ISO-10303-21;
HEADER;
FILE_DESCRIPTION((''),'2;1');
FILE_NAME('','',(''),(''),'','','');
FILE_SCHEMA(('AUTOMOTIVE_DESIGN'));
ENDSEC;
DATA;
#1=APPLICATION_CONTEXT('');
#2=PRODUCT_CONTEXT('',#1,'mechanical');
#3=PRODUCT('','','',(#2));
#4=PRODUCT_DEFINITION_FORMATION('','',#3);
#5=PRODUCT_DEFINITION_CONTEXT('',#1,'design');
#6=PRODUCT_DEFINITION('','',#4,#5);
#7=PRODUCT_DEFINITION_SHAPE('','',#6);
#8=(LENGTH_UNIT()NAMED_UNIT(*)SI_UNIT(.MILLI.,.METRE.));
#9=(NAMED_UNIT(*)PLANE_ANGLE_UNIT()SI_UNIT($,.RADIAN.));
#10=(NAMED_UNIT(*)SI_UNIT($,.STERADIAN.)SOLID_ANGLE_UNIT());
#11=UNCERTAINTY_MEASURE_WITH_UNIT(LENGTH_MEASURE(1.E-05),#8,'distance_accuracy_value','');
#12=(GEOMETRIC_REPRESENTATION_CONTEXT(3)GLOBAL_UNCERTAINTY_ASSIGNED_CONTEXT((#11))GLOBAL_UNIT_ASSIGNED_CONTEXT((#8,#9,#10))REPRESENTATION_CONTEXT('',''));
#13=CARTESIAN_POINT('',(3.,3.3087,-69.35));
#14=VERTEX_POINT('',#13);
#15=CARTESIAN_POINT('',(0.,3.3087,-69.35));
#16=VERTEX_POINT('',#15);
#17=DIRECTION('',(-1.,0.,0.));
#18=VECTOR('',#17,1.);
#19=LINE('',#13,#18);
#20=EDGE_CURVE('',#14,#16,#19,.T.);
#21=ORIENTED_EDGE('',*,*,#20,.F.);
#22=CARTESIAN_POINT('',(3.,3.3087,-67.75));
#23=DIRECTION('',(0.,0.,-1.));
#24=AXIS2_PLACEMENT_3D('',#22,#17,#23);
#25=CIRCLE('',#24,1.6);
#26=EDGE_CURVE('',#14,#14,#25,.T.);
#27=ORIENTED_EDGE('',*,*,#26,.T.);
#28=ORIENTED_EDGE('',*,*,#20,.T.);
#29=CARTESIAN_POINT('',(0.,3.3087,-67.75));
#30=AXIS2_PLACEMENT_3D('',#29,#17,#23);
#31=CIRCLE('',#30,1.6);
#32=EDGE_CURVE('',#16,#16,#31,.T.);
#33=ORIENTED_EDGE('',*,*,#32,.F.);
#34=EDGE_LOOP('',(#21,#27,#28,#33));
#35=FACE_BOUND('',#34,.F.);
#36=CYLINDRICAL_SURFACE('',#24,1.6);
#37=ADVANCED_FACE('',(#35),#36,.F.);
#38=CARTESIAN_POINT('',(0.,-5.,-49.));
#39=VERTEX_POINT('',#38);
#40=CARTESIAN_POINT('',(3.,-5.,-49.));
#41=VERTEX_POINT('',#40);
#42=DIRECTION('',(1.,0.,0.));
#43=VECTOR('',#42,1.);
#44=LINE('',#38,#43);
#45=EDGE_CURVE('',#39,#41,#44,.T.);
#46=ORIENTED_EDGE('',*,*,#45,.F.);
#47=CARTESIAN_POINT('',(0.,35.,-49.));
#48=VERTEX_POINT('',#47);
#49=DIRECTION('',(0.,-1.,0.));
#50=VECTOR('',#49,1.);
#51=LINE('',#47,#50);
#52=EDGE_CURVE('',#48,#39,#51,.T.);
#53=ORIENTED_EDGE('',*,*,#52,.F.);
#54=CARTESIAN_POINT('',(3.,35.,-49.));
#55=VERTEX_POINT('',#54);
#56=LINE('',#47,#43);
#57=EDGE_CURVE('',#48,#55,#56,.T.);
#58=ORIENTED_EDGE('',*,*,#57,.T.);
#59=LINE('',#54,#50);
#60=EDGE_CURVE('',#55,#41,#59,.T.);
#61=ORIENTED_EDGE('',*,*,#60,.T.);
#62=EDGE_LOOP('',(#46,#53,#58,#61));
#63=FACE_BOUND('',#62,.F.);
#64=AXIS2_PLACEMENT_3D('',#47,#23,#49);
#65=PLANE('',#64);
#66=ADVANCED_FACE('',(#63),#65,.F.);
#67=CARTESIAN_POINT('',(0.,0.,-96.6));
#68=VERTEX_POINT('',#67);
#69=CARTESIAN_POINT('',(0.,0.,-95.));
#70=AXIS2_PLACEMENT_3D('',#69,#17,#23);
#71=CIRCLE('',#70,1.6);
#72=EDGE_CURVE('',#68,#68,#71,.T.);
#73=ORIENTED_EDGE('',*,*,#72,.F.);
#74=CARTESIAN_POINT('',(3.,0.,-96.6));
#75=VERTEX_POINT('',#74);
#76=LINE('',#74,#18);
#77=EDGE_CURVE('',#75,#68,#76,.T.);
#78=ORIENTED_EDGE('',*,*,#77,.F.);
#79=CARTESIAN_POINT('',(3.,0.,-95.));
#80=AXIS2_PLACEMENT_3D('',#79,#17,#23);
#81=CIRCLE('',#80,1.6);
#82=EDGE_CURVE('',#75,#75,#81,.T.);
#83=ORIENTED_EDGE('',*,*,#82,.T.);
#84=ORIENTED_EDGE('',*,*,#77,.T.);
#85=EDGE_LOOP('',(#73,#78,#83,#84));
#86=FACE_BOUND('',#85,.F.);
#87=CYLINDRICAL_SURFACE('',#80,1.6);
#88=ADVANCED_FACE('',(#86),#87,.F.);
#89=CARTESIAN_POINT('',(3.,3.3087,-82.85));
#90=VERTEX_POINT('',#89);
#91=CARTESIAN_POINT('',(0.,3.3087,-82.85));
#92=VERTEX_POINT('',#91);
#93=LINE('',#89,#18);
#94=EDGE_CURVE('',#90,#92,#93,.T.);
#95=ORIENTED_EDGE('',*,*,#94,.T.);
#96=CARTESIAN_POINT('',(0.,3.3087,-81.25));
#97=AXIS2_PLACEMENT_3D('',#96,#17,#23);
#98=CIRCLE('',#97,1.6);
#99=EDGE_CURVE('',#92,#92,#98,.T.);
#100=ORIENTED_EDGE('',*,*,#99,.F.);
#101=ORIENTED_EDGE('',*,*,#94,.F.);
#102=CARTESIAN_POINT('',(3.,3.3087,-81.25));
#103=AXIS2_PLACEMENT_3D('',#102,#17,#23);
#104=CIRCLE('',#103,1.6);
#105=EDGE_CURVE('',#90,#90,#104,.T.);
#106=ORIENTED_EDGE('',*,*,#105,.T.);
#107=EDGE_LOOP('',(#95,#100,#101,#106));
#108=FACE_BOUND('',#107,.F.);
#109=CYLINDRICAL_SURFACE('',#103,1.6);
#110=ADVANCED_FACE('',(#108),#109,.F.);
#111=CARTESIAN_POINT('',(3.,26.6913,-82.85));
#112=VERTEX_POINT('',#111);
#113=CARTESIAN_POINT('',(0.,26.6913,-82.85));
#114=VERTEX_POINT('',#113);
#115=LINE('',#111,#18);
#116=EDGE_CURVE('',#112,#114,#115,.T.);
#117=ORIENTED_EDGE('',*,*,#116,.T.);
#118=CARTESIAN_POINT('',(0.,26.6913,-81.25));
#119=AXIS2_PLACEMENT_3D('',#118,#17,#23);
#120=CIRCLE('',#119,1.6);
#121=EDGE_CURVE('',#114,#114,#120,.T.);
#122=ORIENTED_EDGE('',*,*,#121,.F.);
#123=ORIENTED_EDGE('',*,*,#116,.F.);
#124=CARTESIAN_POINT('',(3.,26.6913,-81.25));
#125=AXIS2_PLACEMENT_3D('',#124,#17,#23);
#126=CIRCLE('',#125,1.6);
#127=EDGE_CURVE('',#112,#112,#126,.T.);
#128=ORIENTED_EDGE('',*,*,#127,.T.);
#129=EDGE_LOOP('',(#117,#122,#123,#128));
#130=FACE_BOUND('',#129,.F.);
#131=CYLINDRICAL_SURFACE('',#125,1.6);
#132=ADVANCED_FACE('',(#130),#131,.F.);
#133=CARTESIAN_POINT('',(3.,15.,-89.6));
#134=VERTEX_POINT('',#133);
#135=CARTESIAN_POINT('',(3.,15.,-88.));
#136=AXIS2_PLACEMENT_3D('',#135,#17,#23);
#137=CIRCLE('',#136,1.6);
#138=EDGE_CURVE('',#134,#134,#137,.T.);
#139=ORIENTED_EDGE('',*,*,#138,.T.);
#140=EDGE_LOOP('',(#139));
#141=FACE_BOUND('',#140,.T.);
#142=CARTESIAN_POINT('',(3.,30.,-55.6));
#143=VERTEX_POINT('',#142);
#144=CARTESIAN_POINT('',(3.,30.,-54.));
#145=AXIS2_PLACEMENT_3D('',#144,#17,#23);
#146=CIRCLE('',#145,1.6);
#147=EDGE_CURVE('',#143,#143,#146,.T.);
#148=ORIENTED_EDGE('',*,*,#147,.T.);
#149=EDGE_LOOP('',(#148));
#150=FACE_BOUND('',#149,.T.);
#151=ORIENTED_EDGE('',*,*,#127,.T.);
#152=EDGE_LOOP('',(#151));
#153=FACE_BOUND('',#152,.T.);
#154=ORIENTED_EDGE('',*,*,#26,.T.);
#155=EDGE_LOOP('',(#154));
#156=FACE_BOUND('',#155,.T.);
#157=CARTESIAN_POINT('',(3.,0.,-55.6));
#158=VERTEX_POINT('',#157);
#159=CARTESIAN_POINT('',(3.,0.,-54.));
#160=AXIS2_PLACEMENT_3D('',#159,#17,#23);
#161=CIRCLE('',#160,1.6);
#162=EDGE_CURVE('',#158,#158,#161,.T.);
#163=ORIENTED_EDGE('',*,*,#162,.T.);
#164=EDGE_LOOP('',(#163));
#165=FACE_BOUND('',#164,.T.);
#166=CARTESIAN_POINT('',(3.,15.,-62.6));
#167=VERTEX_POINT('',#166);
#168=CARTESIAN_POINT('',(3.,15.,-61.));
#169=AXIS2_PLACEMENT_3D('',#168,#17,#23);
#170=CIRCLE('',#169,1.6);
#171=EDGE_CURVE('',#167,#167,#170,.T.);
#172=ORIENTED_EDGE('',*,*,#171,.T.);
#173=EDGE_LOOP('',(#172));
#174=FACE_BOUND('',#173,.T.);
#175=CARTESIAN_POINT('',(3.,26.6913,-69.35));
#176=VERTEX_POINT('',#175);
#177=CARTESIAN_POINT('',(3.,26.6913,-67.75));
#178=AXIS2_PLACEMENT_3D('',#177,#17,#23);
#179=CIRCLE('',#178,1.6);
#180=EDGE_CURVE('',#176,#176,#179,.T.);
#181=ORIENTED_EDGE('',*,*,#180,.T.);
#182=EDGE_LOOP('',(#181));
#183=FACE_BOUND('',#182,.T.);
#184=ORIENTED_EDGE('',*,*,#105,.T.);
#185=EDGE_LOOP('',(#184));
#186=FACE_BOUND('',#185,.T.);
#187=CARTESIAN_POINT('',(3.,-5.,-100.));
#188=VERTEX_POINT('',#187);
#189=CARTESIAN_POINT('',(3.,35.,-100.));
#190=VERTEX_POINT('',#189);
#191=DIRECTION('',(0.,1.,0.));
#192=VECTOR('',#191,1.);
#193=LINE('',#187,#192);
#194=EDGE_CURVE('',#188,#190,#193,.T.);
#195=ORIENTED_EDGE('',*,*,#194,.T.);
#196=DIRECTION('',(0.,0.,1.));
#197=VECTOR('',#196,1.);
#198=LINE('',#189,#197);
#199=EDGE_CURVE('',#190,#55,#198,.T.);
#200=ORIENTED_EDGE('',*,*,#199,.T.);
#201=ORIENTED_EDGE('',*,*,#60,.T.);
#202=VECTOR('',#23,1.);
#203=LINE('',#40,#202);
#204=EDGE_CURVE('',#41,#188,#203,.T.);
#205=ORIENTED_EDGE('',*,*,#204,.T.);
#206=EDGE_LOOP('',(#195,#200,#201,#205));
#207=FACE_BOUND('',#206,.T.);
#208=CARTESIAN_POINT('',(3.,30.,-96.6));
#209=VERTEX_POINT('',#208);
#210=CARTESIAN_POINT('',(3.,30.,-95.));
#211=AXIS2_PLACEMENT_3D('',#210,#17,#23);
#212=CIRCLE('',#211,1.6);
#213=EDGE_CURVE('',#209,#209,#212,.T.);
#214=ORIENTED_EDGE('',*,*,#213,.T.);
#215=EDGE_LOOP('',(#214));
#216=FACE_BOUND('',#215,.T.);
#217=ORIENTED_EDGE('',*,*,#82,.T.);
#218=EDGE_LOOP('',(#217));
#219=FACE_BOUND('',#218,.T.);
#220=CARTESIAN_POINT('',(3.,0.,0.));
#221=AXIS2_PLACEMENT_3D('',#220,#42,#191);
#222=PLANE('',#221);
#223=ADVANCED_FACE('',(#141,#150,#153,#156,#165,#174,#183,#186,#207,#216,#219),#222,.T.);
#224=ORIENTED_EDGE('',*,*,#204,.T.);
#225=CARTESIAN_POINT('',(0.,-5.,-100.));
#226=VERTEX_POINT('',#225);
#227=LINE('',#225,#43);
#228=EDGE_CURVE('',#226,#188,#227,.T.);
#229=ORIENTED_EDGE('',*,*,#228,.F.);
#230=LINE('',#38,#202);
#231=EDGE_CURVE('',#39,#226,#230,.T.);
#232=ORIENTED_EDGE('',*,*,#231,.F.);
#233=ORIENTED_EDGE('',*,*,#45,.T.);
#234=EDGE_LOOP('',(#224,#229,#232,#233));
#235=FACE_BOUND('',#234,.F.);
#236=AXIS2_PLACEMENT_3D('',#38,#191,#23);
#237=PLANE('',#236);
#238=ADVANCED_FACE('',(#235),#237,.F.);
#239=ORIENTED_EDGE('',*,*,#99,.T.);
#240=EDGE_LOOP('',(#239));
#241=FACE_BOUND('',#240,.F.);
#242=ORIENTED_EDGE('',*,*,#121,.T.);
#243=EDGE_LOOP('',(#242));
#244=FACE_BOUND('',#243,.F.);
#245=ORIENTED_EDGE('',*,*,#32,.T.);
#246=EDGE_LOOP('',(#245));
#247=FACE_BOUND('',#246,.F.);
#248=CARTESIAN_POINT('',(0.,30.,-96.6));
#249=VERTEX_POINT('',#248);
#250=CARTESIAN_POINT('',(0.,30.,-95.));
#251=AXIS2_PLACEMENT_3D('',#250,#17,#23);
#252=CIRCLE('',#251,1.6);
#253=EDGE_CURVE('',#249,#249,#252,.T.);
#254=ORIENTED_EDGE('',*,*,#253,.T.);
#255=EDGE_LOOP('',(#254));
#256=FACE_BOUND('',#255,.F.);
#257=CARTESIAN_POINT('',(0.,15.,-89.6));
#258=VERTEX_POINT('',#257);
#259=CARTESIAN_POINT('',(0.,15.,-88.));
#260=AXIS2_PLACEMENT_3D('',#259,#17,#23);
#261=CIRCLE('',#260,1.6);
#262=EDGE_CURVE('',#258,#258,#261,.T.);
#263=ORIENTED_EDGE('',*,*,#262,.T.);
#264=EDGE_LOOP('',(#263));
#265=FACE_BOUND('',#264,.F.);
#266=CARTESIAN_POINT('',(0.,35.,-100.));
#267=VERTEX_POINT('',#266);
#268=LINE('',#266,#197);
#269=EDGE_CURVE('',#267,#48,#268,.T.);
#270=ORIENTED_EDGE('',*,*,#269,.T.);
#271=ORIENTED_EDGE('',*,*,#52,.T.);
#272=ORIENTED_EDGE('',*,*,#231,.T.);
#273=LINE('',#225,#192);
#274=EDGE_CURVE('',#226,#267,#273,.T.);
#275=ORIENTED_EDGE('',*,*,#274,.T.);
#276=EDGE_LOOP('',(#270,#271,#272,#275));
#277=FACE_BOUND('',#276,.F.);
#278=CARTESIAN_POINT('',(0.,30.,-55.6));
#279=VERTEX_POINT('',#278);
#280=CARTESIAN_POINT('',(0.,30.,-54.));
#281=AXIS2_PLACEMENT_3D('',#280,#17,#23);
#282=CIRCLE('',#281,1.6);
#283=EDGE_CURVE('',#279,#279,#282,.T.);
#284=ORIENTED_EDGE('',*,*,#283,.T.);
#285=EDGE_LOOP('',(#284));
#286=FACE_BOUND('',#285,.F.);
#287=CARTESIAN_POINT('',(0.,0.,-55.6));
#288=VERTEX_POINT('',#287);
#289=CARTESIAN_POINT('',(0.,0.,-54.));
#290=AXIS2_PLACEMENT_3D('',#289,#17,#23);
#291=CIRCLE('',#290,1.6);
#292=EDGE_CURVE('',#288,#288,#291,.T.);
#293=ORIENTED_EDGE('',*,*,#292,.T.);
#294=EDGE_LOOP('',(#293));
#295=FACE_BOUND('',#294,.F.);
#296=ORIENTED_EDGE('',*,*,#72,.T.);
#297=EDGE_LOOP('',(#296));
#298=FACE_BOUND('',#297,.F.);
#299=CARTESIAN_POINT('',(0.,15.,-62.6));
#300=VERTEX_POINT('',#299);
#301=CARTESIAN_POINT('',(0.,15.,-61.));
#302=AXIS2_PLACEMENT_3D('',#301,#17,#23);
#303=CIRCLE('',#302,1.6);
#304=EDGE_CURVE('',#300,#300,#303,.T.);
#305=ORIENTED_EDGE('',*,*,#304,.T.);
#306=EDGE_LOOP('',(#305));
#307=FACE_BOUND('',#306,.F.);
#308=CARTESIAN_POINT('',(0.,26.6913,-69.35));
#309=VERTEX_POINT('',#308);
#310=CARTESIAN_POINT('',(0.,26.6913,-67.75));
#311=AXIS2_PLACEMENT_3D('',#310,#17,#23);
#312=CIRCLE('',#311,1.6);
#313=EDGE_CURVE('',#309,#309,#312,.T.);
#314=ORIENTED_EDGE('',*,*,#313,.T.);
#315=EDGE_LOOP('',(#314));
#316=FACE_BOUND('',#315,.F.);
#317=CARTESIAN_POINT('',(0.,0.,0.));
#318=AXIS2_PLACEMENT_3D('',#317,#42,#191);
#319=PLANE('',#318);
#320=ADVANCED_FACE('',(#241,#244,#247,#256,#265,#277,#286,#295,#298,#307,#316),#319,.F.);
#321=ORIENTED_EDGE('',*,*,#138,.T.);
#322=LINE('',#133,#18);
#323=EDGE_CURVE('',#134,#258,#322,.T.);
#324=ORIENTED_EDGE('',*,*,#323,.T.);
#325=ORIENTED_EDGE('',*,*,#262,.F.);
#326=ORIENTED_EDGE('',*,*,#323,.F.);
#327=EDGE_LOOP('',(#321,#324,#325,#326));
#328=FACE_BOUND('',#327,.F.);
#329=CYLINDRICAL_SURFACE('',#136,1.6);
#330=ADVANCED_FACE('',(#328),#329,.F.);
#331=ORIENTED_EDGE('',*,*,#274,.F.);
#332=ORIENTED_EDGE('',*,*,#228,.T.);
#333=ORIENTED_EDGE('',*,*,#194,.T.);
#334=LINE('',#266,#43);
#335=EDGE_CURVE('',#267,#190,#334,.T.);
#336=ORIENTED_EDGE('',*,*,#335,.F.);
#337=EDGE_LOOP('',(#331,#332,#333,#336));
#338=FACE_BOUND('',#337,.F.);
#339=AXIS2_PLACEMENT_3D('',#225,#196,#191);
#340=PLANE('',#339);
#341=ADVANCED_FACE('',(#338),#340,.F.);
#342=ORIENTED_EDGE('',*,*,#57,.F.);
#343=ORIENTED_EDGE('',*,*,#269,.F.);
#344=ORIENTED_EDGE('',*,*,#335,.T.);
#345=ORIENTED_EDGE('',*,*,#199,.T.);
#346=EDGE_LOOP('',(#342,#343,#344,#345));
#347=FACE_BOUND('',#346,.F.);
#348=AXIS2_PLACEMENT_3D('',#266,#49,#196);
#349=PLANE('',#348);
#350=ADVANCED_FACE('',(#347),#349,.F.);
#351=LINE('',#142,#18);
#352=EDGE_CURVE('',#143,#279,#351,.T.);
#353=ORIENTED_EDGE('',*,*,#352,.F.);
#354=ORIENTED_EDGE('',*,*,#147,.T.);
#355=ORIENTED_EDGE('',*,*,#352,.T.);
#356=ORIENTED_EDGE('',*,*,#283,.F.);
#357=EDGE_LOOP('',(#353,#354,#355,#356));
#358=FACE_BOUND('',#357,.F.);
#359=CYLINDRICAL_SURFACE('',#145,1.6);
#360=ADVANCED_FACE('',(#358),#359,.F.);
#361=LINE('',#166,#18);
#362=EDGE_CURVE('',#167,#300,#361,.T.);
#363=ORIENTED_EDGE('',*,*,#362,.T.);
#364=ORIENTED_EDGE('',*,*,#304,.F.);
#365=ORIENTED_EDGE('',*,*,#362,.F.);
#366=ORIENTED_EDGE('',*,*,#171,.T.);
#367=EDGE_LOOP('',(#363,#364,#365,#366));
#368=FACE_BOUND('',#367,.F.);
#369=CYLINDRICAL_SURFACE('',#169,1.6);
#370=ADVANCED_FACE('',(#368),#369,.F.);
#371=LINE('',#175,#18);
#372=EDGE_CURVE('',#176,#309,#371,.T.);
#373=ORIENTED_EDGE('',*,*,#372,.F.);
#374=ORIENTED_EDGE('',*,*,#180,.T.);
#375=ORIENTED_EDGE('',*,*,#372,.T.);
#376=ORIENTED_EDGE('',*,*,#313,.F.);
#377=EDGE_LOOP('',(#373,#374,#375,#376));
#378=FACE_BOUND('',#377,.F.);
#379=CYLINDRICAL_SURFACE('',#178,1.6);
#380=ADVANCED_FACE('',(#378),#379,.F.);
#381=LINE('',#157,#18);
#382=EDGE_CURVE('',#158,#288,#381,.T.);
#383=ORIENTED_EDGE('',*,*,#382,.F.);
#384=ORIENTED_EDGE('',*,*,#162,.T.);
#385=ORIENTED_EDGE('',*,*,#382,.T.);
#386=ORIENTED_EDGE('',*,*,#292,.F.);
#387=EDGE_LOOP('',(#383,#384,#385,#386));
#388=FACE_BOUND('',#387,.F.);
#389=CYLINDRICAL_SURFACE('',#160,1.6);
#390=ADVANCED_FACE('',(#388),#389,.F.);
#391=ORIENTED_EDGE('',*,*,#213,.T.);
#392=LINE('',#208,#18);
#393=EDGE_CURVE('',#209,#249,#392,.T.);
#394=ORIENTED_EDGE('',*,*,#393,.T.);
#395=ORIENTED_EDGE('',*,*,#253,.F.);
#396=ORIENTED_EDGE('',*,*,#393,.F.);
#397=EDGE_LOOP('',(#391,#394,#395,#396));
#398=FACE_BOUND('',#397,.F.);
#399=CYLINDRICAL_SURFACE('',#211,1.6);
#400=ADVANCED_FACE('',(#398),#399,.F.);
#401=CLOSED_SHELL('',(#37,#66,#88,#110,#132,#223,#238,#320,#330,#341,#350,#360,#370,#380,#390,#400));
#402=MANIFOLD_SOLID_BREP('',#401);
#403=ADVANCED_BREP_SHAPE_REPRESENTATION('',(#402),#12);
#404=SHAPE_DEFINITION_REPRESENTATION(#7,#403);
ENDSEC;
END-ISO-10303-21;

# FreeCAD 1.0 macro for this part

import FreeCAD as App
import Part
import Sketcher
from FreeCAD import Vector
Q = App.Units.Quantity

doc = App.newDocument("Part")
body = doc.addObject("PartDesign::Body", "Body")

# Sketch on YZ plane
sketch1 = body.newObject("Sketcher::SketchObject", "Sketch")
sketch1.AttachmentSupport = (doc.getObject("YZ_Plane"), [""])
sketch1.MapMode = "FlatFace"
sketch1.addGeometry([
    Part.LineSegment(Vector(35, -100, 0), Vector(35, -49, 0)),
    Part.LineSegment(Vector(35, -49, 0), Vector(-5, -49, 0)),
    Part.LineSegment(Vector(-5, -49, 0), Vector(-5, -100, 0)),
    Part.LineSegment(Vector(-5, -100, 0), Vector(35, -100, 0)),
], False)
sketch1.addConstraint([
    Sketcher.Constraint("Coincident", 0, 2, 1, 1),
    Sketcher.Constraint("Coincident", 1, 2, 2, 1),
    Sketcher.Constraint("Coincident", 2, 2, 3, 1),
    Sketcher.Constraint("Coincident", 3, 2, 0, 1),
    Sketcher.Constraint("Vertical", 0),
    Sketcher.Constraint("Horizontal", 1),
    Sketcher.Constraint("Vertical", 2),
    Sketcher.Constraint("Horizontal", 3),
    Sketcher.Constraint("DistanceX", 1, 2, 1, 1, Q("40 mm")),
    Sketcher.Constraint("DistanceY", 0, 1, 0, 2, Q("51 mm")),
    Sketcher.Constraint("DistanceX", -1, 1, 0, 2, Q("35 mm")),
    Sketcher.Constraint("DistanceY", 0, 2, -1, 1, Q("49 mm")),
])
pad1 = body.newObject("PartDesign::Pad", "Pad")
pad1.Profile = sketch1
pad1.Length = 3

# Sketch on YZ plane
sketch2 = body.newObject("Sketcher::SketchObject", "Sketch001")
sketch2.AttachmentSupport = (doc.getObject("YZ_Plane"), [""])
sketch2.MapMode = "FlatFace"
sketch2.AttachmentOffset = App.Placement(Vector(0, 0, 3), App.Rotation())
sketch2.addGeometry([
    Part.Circle(Vector(30, -54, 0), Vector(0, 0, 1), 1.6),
    Part.Circle(Vector(0, -54, 0), Vector(0, 0, 1), 1.6),
    Part.Circle(Vector(0, -95, 0), Vector(0, 0, 1), 1.6),
    Part.Circle(Vector(30, -95, 0), Vector(0, 0, 1), 1.6),
], False)
sketch2.addConstraint([
    Sketcher.Constraint("Equal", 0, 1),
    Sketcher.Constraint("Equal", 1, 2),
    Sketcher.Constraint("Equal", 2, 3),
    Sketcher.Constraint("PointOnObject", 1, 3, -2),
    Sketcher.Constraint("PointOnObject", 2, 3, -2),
    Sketcher.Constraint("Horizontal", 0, 3, 1, 3),
    Sketcher.Constraint("Horizontal", 2, 3, 3, 3),
    Sketcher.Constraint("Vertical", 0, 3, 3, 3),
    Sketcher.Constraint("Diameter", 0, Q("3.2 mm")),
    Sketcher.Constraint("DistanceX", -1, 1, 0, 3, Q("30 mm")),
    Sketcher.Constraint("DistanceY", 0, 3, -1, 1, Q("54 mm")),
    Sketcher.Constraint("DistanceY", 2, 3, -1, 1, Q("95 mm")),
])
doc.recompute()
hole = body.newObject("PartDesign::Hole", "Hole")
hole.Profile = sketch2
hole.ThreadType = "None"
hole.Diameter = 3.2
hole.DepthType = "ThroughAll"

# Sketch on YZ plane
sketch3 = body.newObject("Sketcher::SketchObject", "Sketch002")
sketch3.AttachmentSupport = (doc.getObject("YZ_Plane"), [""])
sketch3.MapMode = "FlatFace"
sketch3.AttachmentOffset = App.Placement(Vector(0, 0, 3), App.Rotation())
sketch3.addGeometry([
    Part.Circle(Vector(15, -88, 0), Vector(0, 0, 1), 1.6),  # 0
    Part.Circle(Vector(26.6913, -81.25, 0), Vector(0, 0, 1), 1.6),  # 1
    Part.Circle(Vector(26.6913, -67.75, 0), Vector(0, 0, 1), 1.6),  # 2
    Part.Circle(Vector(15, -61, 0), Vector(0, 0, 1), 1.6),  # 3
    Part.Circle(Vector(3.3087, -67.75, 0), Vector(0, 0, 1), 1.6),  # 4
    Part.Circle(Vector(3.3087, -81.25, 0), Vector(0, 0, 1), 1.6),  # 5
], False)
sketch3.addConstraint([
    Sketcher.Constraint("Equal", 0, 1),
    Sketcher.Constraint("Equal", 1, 2),
    Sketcher.Constraint("Equal", 2, 3),
    Sketcher.Constraint("Equal", 3, 4),
    Sketcher.Constraint("Equal", 4, 5),
    Sketcher.Constraint("Horizontal", 2, 3, 4, 3),
    Sketcher.Constraint("Horizontal", 1, 3, 5, 3),
    Sketcher.Constraint("Vertical", 1, 3, 2, 3),
    Sketcher.Constraint("Vertical", 0, 3, 3, 3),
    Sketcher.Constraint("Vertical", 4, 3, 5, 3),
    Sketcher.Constraint("Diameter", 0, Q("3.2 mm")),
    Sketcher.Constraint("DistanceX", -1, 1, 0, 3, Q("15 mm")),
    Sketcher.Constraint("DistanceY", 0, 3, -1, 1, Q("88 mm")),
    Sketcher.Constraint("DistanceY", 3, 3, -1, 1, Q("61 mm")),
    Sketcher.Constraint("DistanceY", 1, 3, 2, 3, Q("13.5 mm")),
    Sketcher.Constraint("DistanceY", 1, 3, -1, 1, Q("81.25 mm")),
    Sketcher.Constraint("DistanceX", -1, 1, 1, 3, Q("26.6913 mm")),
    Sketcher.Constraint("DistanceX", -1, 1, 4, 3, Q("3.3087 mm")),
])
doc.recompute()
hole2 = body.newObject("PartDesign::Hole", "Hole001")
hole2.Profile = sketch3
hole2.ThreadType = "None"
hole2.Diameter = 3.2
hole2.DepthType = "ThroughAll"

doc.recompute()
